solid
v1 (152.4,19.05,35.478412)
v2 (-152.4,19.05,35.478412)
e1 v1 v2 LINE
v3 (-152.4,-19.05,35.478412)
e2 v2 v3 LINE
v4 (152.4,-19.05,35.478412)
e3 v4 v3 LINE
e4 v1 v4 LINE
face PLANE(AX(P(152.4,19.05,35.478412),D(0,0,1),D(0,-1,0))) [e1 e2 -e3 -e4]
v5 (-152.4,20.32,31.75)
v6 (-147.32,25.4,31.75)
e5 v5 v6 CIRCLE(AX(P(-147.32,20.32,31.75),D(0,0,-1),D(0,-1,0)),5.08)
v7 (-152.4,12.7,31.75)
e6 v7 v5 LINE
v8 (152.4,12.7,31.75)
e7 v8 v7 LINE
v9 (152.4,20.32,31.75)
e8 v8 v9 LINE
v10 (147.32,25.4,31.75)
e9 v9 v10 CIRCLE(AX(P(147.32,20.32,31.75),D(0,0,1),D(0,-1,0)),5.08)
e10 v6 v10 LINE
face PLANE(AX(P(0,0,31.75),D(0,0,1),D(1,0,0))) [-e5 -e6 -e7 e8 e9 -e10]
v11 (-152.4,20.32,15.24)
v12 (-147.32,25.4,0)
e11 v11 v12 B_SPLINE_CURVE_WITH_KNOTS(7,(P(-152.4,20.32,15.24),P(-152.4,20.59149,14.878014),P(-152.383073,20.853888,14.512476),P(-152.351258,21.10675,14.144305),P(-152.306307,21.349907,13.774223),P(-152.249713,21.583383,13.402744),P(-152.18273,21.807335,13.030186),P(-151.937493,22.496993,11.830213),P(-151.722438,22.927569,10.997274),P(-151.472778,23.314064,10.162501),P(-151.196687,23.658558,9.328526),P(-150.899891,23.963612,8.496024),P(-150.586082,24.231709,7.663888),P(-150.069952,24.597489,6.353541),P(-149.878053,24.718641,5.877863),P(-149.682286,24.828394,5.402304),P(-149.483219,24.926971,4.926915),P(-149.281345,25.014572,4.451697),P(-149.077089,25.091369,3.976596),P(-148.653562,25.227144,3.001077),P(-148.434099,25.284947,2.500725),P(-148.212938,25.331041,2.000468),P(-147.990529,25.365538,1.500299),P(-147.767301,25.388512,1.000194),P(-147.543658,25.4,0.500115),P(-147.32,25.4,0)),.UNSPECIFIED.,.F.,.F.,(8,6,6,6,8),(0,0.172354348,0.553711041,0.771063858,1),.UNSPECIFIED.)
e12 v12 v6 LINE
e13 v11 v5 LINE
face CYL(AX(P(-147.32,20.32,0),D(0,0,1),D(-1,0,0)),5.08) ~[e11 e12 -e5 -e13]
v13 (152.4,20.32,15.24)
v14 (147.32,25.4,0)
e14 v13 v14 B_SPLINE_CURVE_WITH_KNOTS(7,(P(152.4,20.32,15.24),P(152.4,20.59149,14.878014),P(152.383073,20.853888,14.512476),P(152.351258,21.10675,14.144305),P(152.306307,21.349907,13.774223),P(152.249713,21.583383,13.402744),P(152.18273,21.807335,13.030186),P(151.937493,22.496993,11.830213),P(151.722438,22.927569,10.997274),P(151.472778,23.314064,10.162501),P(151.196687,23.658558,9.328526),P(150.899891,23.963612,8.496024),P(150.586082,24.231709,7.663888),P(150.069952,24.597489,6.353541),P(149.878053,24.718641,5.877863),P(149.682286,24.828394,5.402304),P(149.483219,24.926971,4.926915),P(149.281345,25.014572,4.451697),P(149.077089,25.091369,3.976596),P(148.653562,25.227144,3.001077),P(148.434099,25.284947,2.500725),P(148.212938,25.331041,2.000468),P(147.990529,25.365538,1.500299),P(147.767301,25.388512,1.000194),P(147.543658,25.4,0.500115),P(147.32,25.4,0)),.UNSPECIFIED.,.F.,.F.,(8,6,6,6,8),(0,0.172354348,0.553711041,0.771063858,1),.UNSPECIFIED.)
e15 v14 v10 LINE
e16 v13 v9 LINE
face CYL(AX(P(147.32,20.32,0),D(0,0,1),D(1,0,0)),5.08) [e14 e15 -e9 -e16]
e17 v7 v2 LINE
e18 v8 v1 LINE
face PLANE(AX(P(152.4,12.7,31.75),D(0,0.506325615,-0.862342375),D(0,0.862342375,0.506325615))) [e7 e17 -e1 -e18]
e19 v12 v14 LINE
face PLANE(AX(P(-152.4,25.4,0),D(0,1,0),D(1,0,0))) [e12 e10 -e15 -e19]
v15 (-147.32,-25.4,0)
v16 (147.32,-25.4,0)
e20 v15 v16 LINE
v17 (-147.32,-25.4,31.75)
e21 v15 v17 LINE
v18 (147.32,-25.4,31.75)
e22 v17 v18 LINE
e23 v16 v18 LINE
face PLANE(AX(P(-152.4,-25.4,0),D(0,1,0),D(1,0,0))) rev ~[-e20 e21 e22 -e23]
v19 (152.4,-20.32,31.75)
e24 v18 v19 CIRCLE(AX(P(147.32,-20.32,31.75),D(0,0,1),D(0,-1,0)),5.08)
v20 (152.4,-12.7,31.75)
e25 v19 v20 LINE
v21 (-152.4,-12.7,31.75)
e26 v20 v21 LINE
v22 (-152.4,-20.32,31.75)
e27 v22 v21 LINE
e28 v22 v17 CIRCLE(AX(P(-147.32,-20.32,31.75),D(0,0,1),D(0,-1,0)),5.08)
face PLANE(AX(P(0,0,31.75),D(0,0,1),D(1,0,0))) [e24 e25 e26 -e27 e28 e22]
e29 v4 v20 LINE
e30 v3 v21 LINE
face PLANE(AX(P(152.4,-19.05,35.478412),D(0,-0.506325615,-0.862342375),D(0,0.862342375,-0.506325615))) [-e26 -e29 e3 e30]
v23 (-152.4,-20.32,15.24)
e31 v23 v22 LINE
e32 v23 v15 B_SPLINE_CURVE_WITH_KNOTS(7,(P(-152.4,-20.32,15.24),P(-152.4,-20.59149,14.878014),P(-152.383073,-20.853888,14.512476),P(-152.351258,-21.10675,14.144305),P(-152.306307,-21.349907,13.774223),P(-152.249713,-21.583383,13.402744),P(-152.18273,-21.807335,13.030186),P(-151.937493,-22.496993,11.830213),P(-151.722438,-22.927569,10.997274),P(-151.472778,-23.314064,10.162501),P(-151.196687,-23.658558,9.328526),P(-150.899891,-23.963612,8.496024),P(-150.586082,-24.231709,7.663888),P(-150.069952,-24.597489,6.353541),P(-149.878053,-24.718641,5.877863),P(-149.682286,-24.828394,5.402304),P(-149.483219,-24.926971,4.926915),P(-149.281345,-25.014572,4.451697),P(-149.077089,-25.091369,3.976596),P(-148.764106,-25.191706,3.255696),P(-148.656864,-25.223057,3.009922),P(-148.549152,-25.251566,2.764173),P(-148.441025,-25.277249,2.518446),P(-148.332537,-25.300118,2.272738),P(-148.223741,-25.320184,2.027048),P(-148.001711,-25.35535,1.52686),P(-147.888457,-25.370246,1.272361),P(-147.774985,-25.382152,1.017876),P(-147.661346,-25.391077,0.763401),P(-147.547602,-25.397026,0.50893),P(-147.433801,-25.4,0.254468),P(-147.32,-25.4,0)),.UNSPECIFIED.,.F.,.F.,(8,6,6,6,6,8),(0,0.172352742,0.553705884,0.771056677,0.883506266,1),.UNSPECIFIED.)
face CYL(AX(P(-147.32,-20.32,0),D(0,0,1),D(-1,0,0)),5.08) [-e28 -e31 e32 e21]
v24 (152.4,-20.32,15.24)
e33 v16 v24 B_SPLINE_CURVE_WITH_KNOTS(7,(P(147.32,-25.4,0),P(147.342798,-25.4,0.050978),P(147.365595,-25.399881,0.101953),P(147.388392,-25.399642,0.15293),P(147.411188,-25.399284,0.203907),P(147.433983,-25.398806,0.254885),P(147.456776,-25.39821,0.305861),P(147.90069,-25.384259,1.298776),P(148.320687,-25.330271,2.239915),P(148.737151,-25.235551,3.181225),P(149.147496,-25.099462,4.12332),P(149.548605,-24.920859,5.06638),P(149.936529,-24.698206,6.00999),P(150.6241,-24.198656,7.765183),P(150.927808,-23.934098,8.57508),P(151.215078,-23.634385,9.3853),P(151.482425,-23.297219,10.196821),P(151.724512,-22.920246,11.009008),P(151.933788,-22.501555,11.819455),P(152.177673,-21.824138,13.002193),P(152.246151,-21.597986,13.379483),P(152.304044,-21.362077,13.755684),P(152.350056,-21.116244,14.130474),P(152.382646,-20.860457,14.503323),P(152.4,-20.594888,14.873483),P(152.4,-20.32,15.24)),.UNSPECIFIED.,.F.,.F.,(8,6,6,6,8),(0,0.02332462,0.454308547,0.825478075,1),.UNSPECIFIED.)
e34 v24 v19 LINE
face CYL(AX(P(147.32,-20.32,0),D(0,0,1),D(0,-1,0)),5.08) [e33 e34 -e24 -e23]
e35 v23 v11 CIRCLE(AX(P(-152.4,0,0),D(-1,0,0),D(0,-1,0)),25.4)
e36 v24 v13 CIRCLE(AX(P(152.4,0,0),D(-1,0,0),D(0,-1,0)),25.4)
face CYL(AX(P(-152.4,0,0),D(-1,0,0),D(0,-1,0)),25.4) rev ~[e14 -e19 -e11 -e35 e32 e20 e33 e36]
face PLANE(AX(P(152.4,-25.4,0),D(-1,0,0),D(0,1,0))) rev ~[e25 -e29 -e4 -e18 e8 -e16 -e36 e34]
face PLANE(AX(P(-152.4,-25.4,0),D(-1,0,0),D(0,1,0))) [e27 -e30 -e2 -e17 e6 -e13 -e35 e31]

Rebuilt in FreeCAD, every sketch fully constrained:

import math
import FreeCAD as App
import Part
import Sketcher
from FreeCAD import Vector
Q = App.Units.Quantity


def edges_at(feature, points):
    """Names of the edges that pass closest to the given points."""
    edges = feature.Shape.Edges
    near = lambda p: min(range(len(edges)), key=lambda i: edges[i].distToShape(Part.Vertex(*p))[0])
    return sorted({f"Edge{near(p) + 1}" for p in points})


def add_polygon(sketch, points):
    """Adds a closed chain of lines whose ends are joined by coincident constraints."""
    first, n = sketch.GeometryCount, len(points)
    for a, b in zip(points, points[1:] + points[:1]):
        sketch.addGeometry(Part.LineSegment(App.Vector(*a, 0), App.Vector(*b, 0)), False)
    for i in range(n):
        sketch.addConstraint(Sketcher.Constraint("Coincident", first + i, 2, first + (i + 1) % n, 1))

doc = App.newDocument("Part")
params = doc.addObject("Spreadsheet::Sheet", "Params")
for row, (alias, value) in enumerate([
    ("sketch1_width", "12 in"),
    ("sketch1_height", "2 in"),
    ("pad1_length", "1.25 in"),
    ("fillet_radius", "0.2 in"),
    ("sketch2_radius", "1 in"),
    ("sketch3_width", "1 in"),
    ("sketch3_width2", "1.5 in"),
    ("pad2_length", "12 in"),
], start=1):
    params.set(f"A{row}", alias)
    params.set(f"B{row}", "=" + value)
    params.setAlias(f"B{row}", alias)

body = doc.addObject("PartDesign::Body", "Body")

sketch1 = body.newObject("Sketcher::SketchObject", "Sketch")
sketch1.AttachmentSupport = (doc.getObject("XY_Plane"), [""])
sketch1.MapMode = "FlatFace"
add_polygon(sketch1, [(-152.4, 25.4), (-152.4, -25.4), (152.4, -25.4), (152.4, 25.4)])
sketch1.addConstraint(Sketcher.Constraint("Vertical", 0))
sketch1.addConstraint(Sketcher.Constraint("Horizontal", 1))
sketch1.addConstraint(Sketcher.Constraint("Vertical", 2))
sketch1.addConstraint(Sketcher.Constraint("Horizontal", 3))
sketch1.addConstraint(Sketcher.Constraint("Symmetric", 0, 2, 2, 2, -1, 1))
sketch1.addConstraint(Sketcher.Constraint("DistanceX", 1, 1, 1, 2, Q("12 in")))
sketch1.addConstraint(Sketcher.Constraint("DistanceY", 0, 2, 0, 1, Q("2 in")))
sketch1.setExpression("Constraints[9]", "Params.sketch1_width")
sketch1.setExpression("Constraints[10]", "Params.sketch1_height")
pad1 = body.newObject("PartDesign::Pad", "Pad")
pad1.Profile = sketch1
pad1.setExpression("Length", "Params.pad1_length")
doc.recompute()

fillet = body.newObject("PartDesign::Fillet", "Fillet")
fillet.Base = (pad1, edges_at(pad1, [
    (-152.4, 25.4, 15.875),
    (-152.4, -25.4, 15.875),
    (152.4, 25.4, 15.875),
    (152.4, -25.4, 15.875),
]))
fillet.setExpression("Radius", "Params.fillet_radius")

sketch2 = body.newObject("Sketcher::SketchObject", "Sketch001")
sketch2.AttachmentSupport = (doc.getObject("YZ_Plane"), [""])
sketch2.MapMode = "FlatFace"
sketch2.AttachmentOffset = App.Placement(Vector(0, 0, -6 * 25.4), App.Rotation())
sketch2.addGeometry(Part.LineSegment(Vector(25.4, 0, 0), Vector(-25.4, 0, 0)), False)
sketch2.addGeometry(Part.ArcOfCircle(Part.Circle(Vector(0, 0, 0), Vector(0, 0, 1), 25.4), math.radians(0), math.radians(180)), False)
sketch2.addConstraint(Sketcher.Constraint("Coincident", 0, 1, 1, 1))
sketch2.addConstraint(Sketcher.Constraint("Coincident", 1, 2, 0, 2))
sketch2.addConstraint(Sketcher.Constraint("Horizontal", 0))
sketch2.addConstraint(Sketcher.Constraint("Coincident", 1, 3, -1, 1))
sketch2.addConstraint(Sketcher.Constraint("PointOnObject", 0, 1, -1))
sketch2.addConstraint(Sketcher.Constraint("Radius", 1, Q("1 in")))
sketch2.setExpression("Constraints[5]", "Params.sketch2_radius")
pocket1 = body.newObject("PartDesign::Pocket", "Pocket")
pocket1.Profile = sketch2
pocket1.Type = "ThroughAll"
pocket1.Reversed = True

sketch3 = body.newObject("Sketcher::SketchObject", "Sketch002")
sketch3.AttachmentSupport = (doc.getObject("YZ_Plane"), [""])
sketch3.MapMode = "FlatFace"
sketch3.AttachmentOffset = App.Placement(Vector(0, 0, 6 * 25.4), App.Rotation())
add_polygon(sketch3, [(-12.7, 31.75), (12.7, 31.75), (19.05, 35.478412), (-19.05, 35.478412)])
sketch3.addConstraint(Sketcher.Constraint("Horizontal", 0))
sketch3.addConstraint(Sketcher.Constraint("Horizontal", 2))
sketch3.addConstraint(Sketcher.Constraint("Equal", 1, 3))
sketch3.addConstraint(Sketcher.Constraint("DistanceX", 0, 1, 0, 2, Q("1 in")))
sketch3.addConstraint(Sketcher.Constraint("DistanceX", 2, 2, 2, 1, Q("1.5 in")))
sketch3.addConstraint(Sketcher.Constraint("DistanceX", -1, 1, 0, 2, Q("0.5 in")))
sketch3.addConstraint(Sketcher.Constraint("DistanceY", -1, 1, 0, 2, Q("1.25 in")))
sketch3.addConstraint(Sketcher.Constraint("DistanceY", 0, 2, 1, 2, Q("3.728412 mm")))
sketch3.setExpression("Constraints[7]", "Params.sketch3_width")
sketch3.setExpression("Constraints[8]", "Params.sketch3_width2")
pad2 = body.newObject("PartDesign::Pad", "Pad001")
pad2.Profile = sketch3
pad2.setExpression("Length", "Params.pad2_length")
pad2.Reversed = True

doc.recompute()
